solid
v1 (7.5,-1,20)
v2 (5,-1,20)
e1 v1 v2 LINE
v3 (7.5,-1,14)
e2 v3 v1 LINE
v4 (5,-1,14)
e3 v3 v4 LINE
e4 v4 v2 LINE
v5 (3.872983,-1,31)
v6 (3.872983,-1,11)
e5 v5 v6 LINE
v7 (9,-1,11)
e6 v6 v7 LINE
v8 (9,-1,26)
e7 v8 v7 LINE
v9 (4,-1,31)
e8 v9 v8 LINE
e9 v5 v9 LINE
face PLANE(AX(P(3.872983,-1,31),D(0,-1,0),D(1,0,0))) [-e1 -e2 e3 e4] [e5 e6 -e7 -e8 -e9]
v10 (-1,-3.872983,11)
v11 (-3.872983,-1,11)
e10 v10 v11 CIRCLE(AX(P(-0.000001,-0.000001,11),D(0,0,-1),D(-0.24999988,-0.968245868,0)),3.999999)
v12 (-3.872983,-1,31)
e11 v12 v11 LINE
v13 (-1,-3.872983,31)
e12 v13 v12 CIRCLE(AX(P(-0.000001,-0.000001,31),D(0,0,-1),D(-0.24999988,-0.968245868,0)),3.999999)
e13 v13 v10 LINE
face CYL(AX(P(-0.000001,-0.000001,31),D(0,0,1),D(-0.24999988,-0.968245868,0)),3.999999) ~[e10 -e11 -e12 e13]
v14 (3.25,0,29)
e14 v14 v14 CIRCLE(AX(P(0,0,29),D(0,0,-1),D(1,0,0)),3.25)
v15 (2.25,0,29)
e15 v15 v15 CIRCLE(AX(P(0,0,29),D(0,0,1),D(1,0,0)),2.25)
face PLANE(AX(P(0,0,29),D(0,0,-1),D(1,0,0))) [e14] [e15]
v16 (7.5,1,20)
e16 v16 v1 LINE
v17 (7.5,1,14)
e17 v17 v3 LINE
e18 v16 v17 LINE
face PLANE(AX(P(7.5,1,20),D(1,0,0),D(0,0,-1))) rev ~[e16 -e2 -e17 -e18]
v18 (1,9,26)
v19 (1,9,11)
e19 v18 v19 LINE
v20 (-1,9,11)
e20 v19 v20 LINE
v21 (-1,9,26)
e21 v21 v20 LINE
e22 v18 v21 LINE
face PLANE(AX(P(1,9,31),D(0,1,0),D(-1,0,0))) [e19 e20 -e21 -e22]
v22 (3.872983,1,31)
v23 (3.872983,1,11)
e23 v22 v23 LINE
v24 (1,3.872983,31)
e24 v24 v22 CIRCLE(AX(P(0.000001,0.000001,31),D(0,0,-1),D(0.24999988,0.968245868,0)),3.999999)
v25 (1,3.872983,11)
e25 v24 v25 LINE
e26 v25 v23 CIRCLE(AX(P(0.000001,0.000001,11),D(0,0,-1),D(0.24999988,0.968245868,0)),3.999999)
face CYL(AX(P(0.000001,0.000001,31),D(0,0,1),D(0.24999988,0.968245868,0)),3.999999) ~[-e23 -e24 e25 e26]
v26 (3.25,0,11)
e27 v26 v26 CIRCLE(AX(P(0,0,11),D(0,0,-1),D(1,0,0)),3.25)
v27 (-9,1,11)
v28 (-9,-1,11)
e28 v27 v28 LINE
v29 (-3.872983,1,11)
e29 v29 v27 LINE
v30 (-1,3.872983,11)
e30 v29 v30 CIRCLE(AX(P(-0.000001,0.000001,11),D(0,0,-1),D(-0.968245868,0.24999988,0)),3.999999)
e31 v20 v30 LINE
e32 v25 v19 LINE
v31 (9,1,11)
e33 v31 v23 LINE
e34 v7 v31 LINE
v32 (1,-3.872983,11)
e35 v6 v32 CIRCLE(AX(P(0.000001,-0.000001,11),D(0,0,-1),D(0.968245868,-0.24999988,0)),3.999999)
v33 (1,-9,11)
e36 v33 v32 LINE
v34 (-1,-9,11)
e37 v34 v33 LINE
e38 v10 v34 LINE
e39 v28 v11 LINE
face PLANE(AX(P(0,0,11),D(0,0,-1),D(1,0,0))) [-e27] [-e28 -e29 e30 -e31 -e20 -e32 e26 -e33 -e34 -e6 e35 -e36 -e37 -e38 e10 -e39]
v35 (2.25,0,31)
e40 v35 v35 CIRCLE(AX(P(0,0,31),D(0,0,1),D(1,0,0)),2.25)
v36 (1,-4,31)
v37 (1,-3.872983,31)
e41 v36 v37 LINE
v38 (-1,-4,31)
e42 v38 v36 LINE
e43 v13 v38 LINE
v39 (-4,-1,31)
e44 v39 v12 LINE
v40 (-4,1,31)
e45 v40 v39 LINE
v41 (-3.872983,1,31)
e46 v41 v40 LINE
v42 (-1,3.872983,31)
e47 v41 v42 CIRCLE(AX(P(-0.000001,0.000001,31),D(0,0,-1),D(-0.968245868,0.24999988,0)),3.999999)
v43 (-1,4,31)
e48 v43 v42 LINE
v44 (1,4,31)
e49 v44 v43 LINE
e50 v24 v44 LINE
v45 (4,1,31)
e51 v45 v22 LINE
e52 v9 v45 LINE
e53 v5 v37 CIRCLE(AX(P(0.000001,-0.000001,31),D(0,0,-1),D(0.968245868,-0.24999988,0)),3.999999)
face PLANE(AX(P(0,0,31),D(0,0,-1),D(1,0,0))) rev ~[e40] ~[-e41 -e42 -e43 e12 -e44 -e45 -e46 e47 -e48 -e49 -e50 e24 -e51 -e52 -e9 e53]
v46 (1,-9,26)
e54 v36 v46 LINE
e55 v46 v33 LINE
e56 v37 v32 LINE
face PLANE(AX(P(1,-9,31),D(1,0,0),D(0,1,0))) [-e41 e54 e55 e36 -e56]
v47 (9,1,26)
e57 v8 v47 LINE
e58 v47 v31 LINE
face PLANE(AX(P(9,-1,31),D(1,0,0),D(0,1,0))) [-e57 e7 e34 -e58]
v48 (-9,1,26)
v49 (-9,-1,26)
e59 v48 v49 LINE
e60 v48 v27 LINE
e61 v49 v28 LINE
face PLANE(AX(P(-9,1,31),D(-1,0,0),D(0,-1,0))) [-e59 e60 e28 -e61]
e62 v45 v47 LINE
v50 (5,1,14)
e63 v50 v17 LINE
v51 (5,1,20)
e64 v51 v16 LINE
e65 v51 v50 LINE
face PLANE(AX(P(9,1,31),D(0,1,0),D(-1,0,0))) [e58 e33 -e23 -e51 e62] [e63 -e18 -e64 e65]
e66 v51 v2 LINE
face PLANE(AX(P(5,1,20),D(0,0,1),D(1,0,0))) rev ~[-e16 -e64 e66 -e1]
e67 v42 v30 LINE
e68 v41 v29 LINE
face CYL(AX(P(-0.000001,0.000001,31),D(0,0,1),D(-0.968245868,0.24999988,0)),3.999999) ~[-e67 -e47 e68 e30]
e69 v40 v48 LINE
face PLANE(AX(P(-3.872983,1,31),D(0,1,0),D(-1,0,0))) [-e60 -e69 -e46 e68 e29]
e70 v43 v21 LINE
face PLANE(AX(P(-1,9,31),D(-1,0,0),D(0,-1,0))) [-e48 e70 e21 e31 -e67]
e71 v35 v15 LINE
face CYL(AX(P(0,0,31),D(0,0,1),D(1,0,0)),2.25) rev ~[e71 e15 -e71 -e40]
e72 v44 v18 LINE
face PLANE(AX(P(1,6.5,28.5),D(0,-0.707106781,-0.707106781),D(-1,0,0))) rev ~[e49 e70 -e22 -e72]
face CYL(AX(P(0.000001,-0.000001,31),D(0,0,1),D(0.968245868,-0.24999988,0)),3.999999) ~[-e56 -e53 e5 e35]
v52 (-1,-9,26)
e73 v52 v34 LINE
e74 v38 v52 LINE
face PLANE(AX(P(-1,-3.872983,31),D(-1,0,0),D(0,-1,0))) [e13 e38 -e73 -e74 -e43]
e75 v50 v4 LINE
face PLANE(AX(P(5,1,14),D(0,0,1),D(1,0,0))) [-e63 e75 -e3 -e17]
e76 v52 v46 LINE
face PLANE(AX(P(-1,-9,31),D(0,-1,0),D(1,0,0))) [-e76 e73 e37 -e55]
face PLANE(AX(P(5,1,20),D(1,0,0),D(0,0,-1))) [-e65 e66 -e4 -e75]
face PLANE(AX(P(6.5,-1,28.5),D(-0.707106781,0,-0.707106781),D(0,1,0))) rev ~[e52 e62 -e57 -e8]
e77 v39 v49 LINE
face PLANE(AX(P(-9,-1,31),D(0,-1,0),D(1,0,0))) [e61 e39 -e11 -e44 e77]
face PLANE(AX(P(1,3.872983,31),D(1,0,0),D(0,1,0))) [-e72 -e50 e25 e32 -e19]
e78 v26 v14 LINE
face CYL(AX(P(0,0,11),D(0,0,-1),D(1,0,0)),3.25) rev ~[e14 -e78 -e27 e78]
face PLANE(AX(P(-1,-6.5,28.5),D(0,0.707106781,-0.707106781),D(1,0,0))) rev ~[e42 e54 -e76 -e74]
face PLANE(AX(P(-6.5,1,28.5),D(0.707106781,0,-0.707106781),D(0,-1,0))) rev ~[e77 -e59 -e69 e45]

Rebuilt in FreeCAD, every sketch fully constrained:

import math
import FreeCAD as App
import Part
import Sketcher
Q = App.Units.Quantity


def edges_at(feature, points):
    """Names of the edges that pass closest to the given points."""
    edges = feature.Shape.Edges
    near = lambda p: min(range(len(edges)), key=lambda i: edges[i].distToShape(Part.Vertex(*p))[0])
    return sorted({f"Edge{near(p) + 1}" for p in points})

doc = App.newDocument("Part")
body = doc.addObject("PartDesign::Body", "Body")

sketch1 = body.newObject("Sketcher::SketchObject", "Sketch")
sketch1.AttachmentSupport = (doc.getObject("XY_Plane"), [""])
sketch1.MapMode = "FlatFace"
sketch1.addGeometry(Part.ArcOfCircle(Part.Circle(App.Vector(-0.000001, -0.000001, 0), App.Vector(0, 0, 1), 3.999999), math.radians(-165.522495), math.radians(-104.477505)), False)
sketch1.addGeometry(Part.LineSegment(App.Vector(-1, -3.872983, 0), App.Vector(-1, -9, 0)), False)
sketch1.addGeometry(Part.LineSegment(App.Vector(-1, -9, 0), App.Vector(1, -9, 0)), False)
sketch1.addGeometry(Part.LineSegment(App.Vector(1, -9, 0), App.Vector(1, -3.872983, 0)), False)
sketch1.addGeometry(Part.ArcOfCircle(Part.Circle(App.Vector(0.000001, -0.000001, 0), App.Vector(0, 0, 1), 3.999999), math.radians(-75.522495), math.radians(-14.477505)), False)
sketch1.addGeometry(Part.LineSegment(App.Vector(3.872983, -1, 0), App.Vector(9, -1, 0)), False)
sketch1.addGeometry(Part.LineSegment(App.Vector(9, -1, 0), App.Vector(9, 1, 0)), False)
sketch1.addGeometry(Part.LineSegment(App.Vector(9, 1, 0), App.Vector(3.872983, 1, 0)), False)
sketch1.addGeometry(Part.ArcOfCircle(Part.Circle(App.Vector(0.000001, 0.000001, 0), App.Vector(0, 0, 1), 3.999999), math.radians(14.477505), math.radians(75.522495)), False)
sketch1.addGeometry(Part.LineSegment(App.Vector(1, 3.872983, 0), App.Vector(1, 9, 0)), False)
sketch1.addGeometry(Part.LineSegment(App.Vector(1, 9, 0), App.Vector(-1, 9, 0)), False)
sketch1.addGeometry(Part.LineSegment(App.Vector(-1, 9, 0), App.Vector(-1, 3.872983, 0)), False)
sketch1.addGeometry(Part.ArcOfCircle(Part.Circle(App.Vector(-0.000001, 0.000001, 0), App.Vector(0, 0, 1), 3.999999), math.radians(104.477505), math.radians(165.522495)), False)
sketch1.addGeometry(Part.LineSegment(App.Vector(-3.872983, 1, 0), App.Vector(-9, 1, 0)), False)
sketch1.addGeometry(Part.LineSegment(App.Vector(-9, 1, 0), App.Vector(-9, -1, 0)), False)
sketch1.addGeometry(Part.LineSegment(App.Vector(-9, -1, 0), App.Vector(-3.872983, -1, 0)), False)
sketch1.addConstraint(Sketcher.Constraint("Coincident", 0, 2, 1, 1))
sketch1.addConstraint(Sketcher.Constraint("Coincident", 1, 2, 2, 1))
sketch1.addConstraint(Sketcher.Constraint("Coincident", 2, 2, 3, 1))
sketch1.addConstraint(Sketcher.Constraint("Coincident", 3, 2, 4, 1))
sketch1.addConstraint(Sketcher.Constraint("Coincident", 4, 2, 5, 1))
sketch1.addConstraint(Sketcher.Constraint("Coincident", 5, 2, 6, 1))
sketch1.addConstraint(Sketcher.Constraint("Coincident", 6, 2, 7, 1))
sketch1.addConstraint(Sketcher.Constraint("Coincident", 7, 2, 8, 1))
sketch1.addConstraint(Sketcher.Constraint("Coincident", 8, 2, 9, 1))
sketch1.addConstraint(Sketcher.Constraint("Coincident", 9, 2, 10, 1))
sketch1.addConstraint(Sketcher.Constraint("Coincident", 10, 2, 11, 1))
sketch1.addConstraint(Sketcher.Constraint("Coincident", 11, 2, 12, 1))
sketch1.addConstraint(Sketcher.Constraint("Coincident", 12, 2, 13, 1))
sketch1.addConstraint(Sketcher.Constraint("Coincident", 13, 2, 14, 1))
sketch1.addConstraint(Sketcher.Constraint("Coincident", 14, 2, 15, 1))
sketch1.addConstraint(Sketcher.Constraint("Coincident", 15, 2, 0, 1))
sketch1.addConstraint(Sketcher.Constraint("Vertical", 1))
sketch1.addConstraint(Sketcher.Constraint("Horizontal", 2))
sketch1.addConstraint(Sketcher.Constraint("Vertical", 3))
sketch1.addConstraint(Sketcher.Constraint("Horizontal", 5))
sketch1.addConstraint(Sketcher.Constraint("Vertical", 6))
sketch1.addConstraint(Sketcher.Constraint("Horizontal", 7))
sketch1.addConstraint(Sketcher.Constraint("Vertical", 9))
sketch1.addConstraint(Sketcher.Constraint("Horizontal", 10))
sketch1.addConstraint(Sketcher.Constraint("Vertical", 11))
sketch1.addConstraint(Sketcher.Constraint("Horizontal", 13))
sketch1.addConstraint(Sketcher.Constraint("Vertical", 14))
sketch1.addConstraint(Sketcher.Constraint("Horizontal", 15))
sketch1.addConstraint(Sketcher.Constraint("Coincident", 0, 3, -1, 1))
sketch1.addConstraint(Sketcher.Constraint("Coincident", 4, 3, -1, 1))
sketch1.addConstraint(Sketcher.Constraint("Coincident", 8, 3, -1, 1))
sketch1.addConstraint(Sketcher.Constraint("Coincident", 12, 3, -1, 1))
sketch1.addConstraint(Sketcher.Constraint("Equal", 0, 4))
sketch1.addConstraint(Sketcher.Constraint("Equal", 4, 8))
sketch1.addConstraint(Sketcher.Constraint("Equal", 8, 12))
sketch1.addConstraint(Sketcher.Constraint("Symmetric", 1, 2, 9, 2, -1, 1))
sketch1.addConstraint(Sketcher.Constraint("Symmetric", 5, 2, 13, 2, -1, 1))
sketch1.addConstraint(Sketcher.Constraint("Horizontal", 0, 2, 3, 2))
sketch1.addConstraint(Sketcher.Constraint("Horizontal", 8, 2, 11, 2))
sketch1.addConstraint(Sketcher.Constraint("Horizontal", 7, 2, 12, 2))
sketch1.addConstraint(Sketcher.Constraint("Horizontal", 5, 2, 14, 2))
sketch1.addConstraint(Sketcher.Constraint("Equal", 15, 1))
sketch1.addConstraint(Sketcher.Constraint("Equal", 10, 6))
sketch1.addConstraint(Sketcher.Constraint("Radius", 0, Q("3.999999 mm")))
sketch1.addConstraint(Sketcher.Constraint("DistanceX", 2, 1, 2, 2, Q("2 mm")))
sketch1.addConstraint(Sketcher.Constraint("DistanceY", 1, 2, -1, 1, Q("9 mm")))
pad1 = body.newObject("PartDesign::Pad", "Pad")
pad1.Profile = sketch1
pad1.Length = 20

sketch2 = body.newObject("Sketcher::SketchObject", "Sketch001")
sketch2.AttachmentSupport = (doc.getObject("XZ_Plane"), [""])
sketch2.MapMode = "FlatFace"
sketch2.AttachmentOffset = App.Placement(App.Vector(0, 0, 1), App.Rotation())
sketch2.addGeometry(Part.LineSegment(App.Vector(5, 17, 0), App.Vector(5, 11, 0)), False)
sketch2.addGeometry(Part.LineSegment(App.Vector(5, 11, 0), App.Vector(7.5, 11, 0)), False)
sketch2.addGeometry(Part.LineSegment(App.Vector(7.5, 11, 0), App.Vector(7.5, 17, 0)), False)
sketch2.addGeometry(Part.LineSegment(App.Vector(7.5, 17, 0), App.Vector(5, 17, 0)), False)
sketch2.addConstraint(Sketcher.Constraint("Coincident", 0, 2, 1, 1))
sketch2.addConstraint(Sketcher.Constraint("Coincident", 1, 2, 2, 1))
sketch2.addConstraint(Sketcher.Constraint("Coincident", 2, 2, 3, 1))
sketch2.addConstraint(Sketcher.Constraint("Coincident", 3, 2, 0, 1))
sketch2.addConstraint(Sketcher.Constraint("Vertical", 0))
sketch2.addConstraint(Sketcher.Constraint("Horizontal", 1))
sketch2.addConstraint(Sketcher.Constraint("Vertical", 2))
sketch2.addConstraint(Sketcher.Constraint("Horizontal", 3))
sketch2.addConstraint(Sketcher.Constraint("DistanceY", 0, 2, 0, 1, Q("6 mm")))
sketch2.addConstraint(Sketcher.Constraint("DistanceX", 1, 1, 1, 2, Q("2.5 mm")))
sketch2.addConstraint(Sketcher.Constraint("DistanceX", -1, 1, 0, 2, Q("5 mm")))
sketch2.addConstraint(Sketcher.Constraint("DistanceY", -1, 1, 0, 2, Q("11 mm")))
pocket1 = body.newObject("PartDesign::Pocket", "Pocket")
pocket1.Profile = sketch2
pocket1.Type = "ThroughAll"

sketch3 = body.newObject("Sketcher::SketchObject", "Sketch002")
sketch3.AttachmentSupport = (doc.getObject("XY_Plane"), [""])
sketch3.MapMode = "FlatFace"
sketch3.AttachmentOffset = App.Placement(App.Vector(0, 0, 20), App.Rotation())
sketch3.addGeometry(Part.Circle(App.Vector(0, 0, 0), App.Vector(0, 0, 1), 3.25), False)
sketch3.addConstraint(Sketcher.Constraint("Coincident", 0, 3, -1, 1))
sketch3.addConstraint(Sketcher.Constraint("Diameter", 0, Q("6.5 mm")))
pocket2 = body.newObject("PartDesign::Pocket", "Pocket001")
pocket2.Profile = sketch3
pocket2.Length = 18

sketch4 = body.newObject("Sketcher::SketchObject", "Sketch003")
sketch4.AttachmentSupport = (doc.getObject("XY_Plane"), [""])
sketch4.MapMode = "FlatFace"
sketch4.addGeometry(Part.Circle(App.Vector(0, 0, 0), App.Vector(0, 0, 1), 2.25), False)
sketch4.addConstraint(Sketcher.Constraint("Coincident", 0, 3, -1, 1))
sketch4.addConstraint(Sketcher.Constraint("Diameter", 0, Q("4.5 mm")))
pocket3 = body.newObject("PartDesign::Pocket", "Pocket002")
pocket3.Profile = sketch4
pocket3.Length = 2
pocket3.Reversed = True
doc.recompute()

chamfer = body.newObject("PartDesign::Chamfer", "Chamfer")
chamfer.Base = (pocket3, edges_at(pocket3, [
    (-9, 0, 0),
    (0, -9, 0),
    (9, 0, 0),
    (0, 9, 0),
]))
chamfer.Size = 5
body2 = doc.addObject("PartDesign::Body", "Body001")
doc.recompute()

body.Placement = App.Placement(App.Vector(0, 0, 31), App.Rotation(App.Vector(1, 0, 0), 180))
boolean = body2.newObject("PartDesign::Boolean", "Boolean")
boolean.Type = "Fuse"
boolean.addObjects([body])

doc.recompute()
